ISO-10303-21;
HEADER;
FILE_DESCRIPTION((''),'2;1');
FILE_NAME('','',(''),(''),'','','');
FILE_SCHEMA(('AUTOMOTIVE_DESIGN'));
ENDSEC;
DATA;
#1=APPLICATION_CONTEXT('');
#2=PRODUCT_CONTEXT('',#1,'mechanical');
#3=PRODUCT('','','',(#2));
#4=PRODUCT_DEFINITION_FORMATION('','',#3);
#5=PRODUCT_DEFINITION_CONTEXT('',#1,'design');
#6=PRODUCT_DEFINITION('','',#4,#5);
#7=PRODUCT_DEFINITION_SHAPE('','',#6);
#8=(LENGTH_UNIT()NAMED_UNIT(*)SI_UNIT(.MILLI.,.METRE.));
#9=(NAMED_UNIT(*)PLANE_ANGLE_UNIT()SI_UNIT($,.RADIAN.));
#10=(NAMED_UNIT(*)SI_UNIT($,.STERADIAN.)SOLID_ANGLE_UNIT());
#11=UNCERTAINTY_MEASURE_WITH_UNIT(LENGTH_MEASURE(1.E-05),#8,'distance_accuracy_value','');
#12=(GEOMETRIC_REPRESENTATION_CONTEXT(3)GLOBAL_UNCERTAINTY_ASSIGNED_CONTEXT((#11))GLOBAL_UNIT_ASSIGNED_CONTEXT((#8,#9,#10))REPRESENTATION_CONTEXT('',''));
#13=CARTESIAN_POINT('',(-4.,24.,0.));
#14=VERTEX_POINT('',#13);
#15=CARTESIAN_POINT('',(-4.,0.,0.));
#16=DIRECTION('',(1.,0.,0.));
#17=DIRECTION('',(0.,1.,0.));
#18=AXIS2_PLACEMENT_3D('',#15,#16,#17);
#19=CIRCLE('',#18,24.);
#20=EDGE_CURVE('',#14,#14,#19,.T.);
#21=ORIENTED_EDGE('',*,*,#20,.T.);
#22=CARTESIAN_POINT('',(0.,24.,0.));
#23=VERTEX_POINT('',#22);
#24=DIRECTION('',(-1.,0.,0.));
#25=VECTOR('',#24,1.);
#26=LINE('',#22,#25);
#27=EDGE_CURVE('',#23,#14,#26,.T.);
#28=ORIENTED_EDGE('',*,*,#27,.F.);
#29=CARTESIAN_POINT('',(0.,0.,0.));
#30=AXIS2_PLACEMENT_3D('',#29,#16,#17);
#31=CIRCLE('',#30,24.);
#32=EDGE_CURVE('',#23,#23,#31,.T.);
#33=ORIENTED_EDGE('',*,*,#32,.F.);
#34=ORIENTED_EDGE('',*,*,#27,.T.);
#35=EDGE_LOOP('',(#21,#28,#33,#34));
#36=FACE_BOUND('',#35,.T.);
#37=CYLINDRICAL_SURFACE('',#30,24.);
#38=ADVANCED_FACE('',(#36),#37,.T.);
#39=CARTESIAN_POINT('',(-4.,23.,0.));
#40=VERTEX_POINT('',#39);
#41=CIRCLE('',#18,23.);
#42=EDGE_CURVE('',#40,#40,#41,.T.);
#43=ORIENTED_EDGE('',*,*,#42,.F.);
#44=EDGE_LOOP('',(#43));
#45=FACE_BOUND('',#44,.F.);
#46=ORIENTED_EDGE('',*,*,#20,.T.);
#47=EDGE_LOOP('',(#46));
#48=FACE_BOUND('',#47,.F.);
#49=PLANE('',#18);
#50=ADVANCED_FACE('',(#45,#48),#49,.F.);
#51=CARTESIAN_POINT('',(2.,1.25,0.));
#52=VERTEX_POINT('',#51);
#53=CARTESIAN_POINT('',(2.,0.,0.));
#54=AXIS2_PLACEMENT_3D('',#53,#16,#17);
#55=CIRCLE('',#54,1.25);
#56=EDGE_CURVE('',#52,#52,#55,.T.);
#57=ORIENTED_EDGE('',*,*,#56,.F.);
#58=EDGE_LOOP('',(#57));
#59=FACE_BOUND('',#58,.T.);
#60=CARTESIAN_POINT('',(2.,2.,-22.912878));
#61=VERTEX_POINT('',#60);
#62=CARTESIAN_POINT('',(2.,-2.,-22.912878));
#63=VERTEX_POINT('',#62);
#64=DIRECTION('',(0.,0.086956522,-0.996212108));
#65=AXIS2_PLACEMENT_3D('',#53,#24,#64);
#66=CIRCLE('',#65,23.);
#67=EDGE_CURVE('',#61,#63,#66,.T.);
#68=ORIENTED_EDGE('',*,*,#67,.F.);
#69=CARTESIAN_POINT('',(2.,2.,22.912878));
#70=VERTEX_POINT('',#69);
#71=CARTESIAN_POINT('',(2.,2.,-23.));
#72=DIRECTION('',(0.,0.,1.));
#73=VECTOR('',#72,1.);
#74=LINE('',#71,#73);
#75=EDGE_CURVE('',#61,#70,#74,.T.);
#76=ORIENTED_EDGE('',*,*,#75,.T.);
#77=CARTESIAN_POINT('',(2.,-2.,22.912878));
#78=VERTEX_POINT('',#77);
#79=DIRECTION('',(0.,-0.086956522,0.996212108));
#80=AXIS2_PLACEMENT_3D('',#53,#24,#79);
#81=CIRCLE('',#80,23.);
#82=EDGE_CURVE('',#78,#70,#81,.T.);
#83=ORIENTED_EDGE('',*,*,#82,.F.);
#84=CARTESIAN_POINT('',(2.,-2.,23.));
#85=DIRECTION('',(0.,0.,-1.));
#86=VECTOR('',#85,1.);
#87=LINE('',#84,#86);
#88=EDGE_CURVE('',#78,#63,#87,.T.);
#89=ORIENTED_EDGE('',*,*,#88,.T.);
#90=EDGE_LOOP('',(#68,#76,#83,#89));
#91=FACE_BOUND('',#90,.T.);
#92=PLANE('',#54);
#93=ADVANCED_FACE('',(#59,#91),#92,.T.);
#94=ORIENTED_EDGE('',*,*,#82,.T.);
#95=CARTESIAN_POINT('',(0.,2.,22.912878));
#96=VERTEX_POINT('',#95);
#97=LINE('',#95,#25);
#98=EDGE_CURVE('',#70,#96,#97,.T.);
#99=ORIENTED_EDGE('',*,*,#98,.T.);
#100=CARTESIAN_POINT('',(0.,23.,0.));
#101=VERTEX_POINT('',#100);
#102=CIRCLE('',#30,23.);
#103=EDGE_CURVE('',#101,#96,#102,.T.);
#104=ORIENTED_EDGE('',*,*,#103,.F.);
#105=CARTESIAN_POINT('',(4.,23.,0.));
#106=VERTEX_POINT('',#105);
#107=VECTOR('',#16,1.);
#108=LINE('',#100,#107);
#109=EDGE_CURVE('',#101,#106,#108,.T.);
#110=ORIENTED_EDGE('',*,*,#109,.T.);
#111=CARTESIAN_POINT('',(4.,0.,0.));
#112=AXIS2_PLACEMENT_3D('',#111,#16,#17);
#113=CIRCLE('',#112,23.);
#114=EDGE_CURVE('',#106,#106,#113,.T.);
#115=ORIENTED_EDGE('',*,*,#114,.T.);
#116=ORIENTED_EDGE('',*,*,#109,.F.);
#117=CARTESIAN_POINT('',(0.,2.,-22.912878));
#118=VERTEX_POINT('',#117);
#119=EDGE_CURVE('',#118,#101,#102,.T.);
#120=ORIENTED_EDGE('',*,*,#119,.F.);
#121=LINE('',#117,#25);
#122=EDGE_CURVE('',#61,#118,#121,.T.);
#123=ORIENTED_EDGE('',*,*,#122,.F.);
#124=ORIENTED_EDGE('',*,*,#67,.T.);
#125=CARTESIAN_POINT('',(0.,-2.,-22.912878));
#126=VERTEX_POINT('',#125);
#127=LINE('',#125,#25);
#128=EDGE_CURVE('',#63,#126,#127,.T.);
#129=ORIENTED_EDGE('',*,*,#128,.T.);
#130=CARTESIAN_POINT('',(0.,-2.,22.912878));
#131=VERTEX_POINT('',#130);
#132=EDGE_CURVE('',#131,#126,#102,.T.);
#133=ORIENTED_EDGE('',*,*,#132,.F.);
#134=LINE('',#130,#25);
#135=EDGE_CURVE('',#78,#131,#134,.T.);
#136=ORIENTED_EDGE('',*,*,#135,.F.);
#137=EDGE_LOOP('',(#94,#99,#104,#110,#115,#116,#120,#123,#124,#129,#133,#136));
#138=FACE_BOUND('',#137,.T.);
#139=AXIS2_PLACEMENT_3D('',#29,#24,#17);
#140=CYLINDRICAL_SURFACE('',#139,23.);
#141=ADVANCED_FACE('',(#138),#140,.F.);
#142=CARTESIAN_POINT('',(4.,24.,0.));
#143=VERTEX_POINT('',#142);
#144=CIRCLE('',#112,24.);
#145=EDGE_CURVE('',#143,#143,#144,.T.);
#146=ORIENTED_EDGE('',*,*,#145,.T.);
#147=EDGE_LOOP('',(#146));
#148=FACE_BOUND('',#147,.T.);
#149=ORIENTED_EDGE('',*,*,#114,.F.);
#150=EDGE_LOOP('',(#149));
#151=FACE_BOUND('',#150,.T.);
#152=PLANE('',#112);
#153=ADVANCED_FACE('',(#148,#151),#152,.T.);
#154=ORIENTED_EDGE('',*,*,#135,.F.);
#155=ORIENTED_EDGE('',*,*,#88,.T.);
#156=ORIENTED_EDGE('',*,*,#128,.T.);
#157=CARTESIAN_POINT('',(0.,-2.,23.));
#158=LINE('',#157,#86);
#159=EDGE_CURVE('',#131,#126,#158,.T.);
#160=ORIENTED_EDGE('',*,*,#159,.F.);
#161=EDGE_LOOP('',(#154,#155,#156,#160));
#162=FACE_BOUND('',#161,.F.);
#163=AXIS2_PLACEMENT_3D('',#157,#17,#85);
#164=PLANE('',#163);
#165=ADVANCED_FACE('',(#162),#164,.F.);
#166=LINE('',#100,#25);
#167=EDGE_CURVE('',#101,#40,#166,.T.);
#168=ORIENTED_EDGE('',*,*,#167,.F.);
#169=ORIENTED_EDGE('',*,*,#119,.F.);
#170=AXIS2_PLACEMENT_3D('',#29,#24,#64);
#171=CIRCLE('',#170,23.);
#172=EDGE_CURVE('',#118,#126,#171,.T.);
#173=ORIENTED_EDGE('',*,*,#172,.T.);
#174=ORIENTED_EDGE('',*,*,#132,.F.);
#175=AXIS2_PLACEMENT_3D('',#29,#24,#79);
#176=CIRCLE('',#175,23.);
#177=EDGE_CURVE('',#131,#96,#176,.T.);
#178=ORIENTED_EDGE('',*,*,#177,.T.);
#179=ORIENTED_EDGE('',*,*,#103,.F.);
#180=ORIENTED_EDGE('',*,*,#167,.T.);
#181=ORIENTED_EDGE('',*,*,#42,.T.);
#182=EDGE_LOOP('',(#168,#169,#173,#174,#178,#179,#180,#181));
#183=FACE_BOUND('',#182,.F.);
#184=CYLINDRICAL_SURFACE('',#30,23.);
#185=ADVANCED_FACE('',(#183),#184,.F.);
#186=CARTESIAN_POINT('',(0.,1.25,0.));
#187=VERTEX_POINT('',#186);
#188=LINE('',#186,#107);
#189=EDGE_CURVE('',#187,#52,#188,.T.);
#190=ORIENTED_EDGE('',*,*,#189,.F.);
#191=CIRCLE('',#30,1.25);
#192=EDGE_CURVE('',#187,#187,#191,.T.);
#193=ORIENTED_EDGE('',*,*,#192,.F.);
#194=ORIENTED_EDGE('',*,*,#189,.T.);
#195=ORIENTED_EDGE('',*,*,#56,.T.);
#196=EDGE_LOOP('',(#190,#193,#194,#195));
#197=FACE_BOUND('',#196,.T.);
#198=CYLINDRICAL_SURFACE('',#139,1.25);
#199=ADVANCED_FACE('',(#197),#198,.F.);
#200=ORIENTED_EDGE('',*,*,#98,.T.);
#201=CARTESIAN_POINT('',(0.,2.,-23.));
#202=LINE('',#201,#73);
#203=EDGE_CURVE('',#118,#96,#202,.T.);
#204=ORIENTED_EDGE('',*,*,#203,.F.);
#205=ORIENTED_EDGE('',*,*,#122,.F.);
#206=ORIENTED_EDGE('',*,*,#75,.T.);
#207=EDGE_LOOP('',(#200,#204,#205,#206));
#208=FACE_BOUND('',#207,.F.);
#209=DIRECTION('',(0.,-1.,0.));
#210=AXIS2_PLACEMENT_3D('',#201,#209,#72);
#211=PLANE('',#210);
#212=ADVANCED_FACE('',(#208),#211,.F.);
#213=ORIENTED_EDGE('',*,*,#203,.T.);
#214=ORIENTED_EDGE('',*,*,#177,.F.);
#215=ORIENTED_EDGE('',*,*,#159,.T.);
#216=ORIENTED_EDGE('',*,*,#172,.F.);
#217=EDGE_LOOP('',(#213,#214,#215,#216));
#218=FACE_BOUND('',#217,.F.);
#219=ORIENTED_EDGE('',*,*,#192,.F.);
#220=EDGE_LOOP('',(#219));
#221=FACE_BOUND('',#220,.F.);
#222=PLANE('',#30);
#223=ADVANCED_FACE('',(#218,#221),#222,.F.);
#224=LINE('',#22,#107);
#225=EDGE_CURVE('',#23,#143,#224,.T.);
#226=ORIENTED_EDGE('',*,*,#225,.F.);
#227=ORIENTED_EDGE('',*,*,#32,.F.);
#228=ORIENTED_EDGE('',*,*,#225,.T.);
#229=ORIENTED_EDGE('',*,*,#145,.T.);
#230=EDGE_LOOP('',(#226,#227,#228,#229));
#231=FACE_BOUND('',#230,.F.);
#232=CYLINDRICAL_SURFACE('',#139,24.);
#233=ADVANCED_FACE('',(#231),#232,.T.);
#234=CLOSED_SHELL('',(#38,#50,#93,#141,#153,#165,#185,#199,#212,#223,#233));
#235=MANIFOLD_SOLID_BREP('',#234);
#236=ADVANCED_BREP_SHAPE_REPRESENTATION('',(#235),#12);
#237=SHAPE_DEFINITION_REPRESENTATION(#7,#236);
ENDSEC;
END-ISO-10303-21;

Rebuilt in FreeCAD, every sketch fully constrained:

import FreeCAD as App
import Part
import Sketcher


def add_polygon(sketch, points):
    """Adds a closed chain of lines whose ends are joined by coincident constraints."""
    first, n = sketch.GeometryCount, len(points)
    for a, b in zip(points, points[1:] + points[:1]):
        sketch.addGeometry(Part.LineSegment(App.Vector(*a, 0), App.Vector(*b, 0)), False)
    for i in range(n):
        sketch.addConstraint(Sketcher.Constraint("Coincident", first + i, 2, first + (i + 1) % n, 1))

doc = App.newDocument("Part")
body = doc.addObject("PartDesign::Body", "Body")

# Sketch on YZ plane
sketch1 = doc.addObject("Sketcher::SketchObject", "Sketch")
body.addObject(sketch1)
sketch1.AttachmentSupport = (doc.YZ_Plane, [""])
sketch1.MapMode = "FlatFace"
add_polygon(sketch1, [(2, -23), (2, 23), (-2, 23), (-2, -23)])  # lines 0-3
sketch1.addGeometry(Part.Circle(App.Vector(0, 0, 0), App.Vector(0, 0, 1), 1.2), False)  # 4
sketch1.addConstraint(Sketcher.Constraint("Vertical", 0))
sketch1.addConstraint(Sketcher.Constraint("Horizontal", 1))
sketch1.addConstraint(Sketcher.Constraint("Vertical", 2))
sketch1.addConstraint(Sketcher.Constraint("Horizontal", 3))
sketch1.addConstraint(Sketcher.Constraint("Coincident", 4, 3, -1, 1))
sketch1.addConstraint(Sketcher.Constraint("Symmetric", 0, 2, 2, 2, -1, 1))
sketch1.addConstraint(Sketcher.Constraint("Diameter", 4, 2.5))
sketch1.addConstraint(Sketcher.Constraint("DistanceX", 1, 2, 1, 1, 4.0))
sketch1.addConstraint(Sketcher.Constraint("DistanceY", 0, 1, 0, 2, 46.0))
pad1 = doc.addObject("PartDesign::Pad", "Pad")
body.addObject(pad1)
pad1.Profile = sketch1
pad1.Length = 2

# Sketch on YZ plane
sketch2 = doc.addObject("Sketcher::SketchObject", "Sketch001")
body.addObject(sketch2)
sketch2.AttachmentSupport = (doc.YZ_Plane, [""])
sketch2.MapMode = "FlatFace"
sketch2.addGeometry(Part.Circle(App.Vector(0, 0, 0), App.Vector(0, 0, 1), 24), False)
sketch2.addGeometry(Part.Circle(App.Vector(0, 0, 0), App.Vector(0, 0, 1), 23), False)
sketch2.addConstraint(Sketcher.Constraint("Coincident", 0, 3, -1, 1))
sketch2.addConstraint(Sketcher.Constraint("Coincident", 1, 3, -1, 1))
sketch2.addConstraint(Sketcher.Constraint("Diameter", 0, 48.0))
sketch2.addConstraint(Sketcher.Constraint("Diameter", 1, 46.0))
pad2 = doc.addObject("PartDesign::Pad", "Pad001")
body.addObject(pad2)
pad2.Profile = sketch2
pad2.Length = 8
pad2.Midplane = True

doc.recompute()
